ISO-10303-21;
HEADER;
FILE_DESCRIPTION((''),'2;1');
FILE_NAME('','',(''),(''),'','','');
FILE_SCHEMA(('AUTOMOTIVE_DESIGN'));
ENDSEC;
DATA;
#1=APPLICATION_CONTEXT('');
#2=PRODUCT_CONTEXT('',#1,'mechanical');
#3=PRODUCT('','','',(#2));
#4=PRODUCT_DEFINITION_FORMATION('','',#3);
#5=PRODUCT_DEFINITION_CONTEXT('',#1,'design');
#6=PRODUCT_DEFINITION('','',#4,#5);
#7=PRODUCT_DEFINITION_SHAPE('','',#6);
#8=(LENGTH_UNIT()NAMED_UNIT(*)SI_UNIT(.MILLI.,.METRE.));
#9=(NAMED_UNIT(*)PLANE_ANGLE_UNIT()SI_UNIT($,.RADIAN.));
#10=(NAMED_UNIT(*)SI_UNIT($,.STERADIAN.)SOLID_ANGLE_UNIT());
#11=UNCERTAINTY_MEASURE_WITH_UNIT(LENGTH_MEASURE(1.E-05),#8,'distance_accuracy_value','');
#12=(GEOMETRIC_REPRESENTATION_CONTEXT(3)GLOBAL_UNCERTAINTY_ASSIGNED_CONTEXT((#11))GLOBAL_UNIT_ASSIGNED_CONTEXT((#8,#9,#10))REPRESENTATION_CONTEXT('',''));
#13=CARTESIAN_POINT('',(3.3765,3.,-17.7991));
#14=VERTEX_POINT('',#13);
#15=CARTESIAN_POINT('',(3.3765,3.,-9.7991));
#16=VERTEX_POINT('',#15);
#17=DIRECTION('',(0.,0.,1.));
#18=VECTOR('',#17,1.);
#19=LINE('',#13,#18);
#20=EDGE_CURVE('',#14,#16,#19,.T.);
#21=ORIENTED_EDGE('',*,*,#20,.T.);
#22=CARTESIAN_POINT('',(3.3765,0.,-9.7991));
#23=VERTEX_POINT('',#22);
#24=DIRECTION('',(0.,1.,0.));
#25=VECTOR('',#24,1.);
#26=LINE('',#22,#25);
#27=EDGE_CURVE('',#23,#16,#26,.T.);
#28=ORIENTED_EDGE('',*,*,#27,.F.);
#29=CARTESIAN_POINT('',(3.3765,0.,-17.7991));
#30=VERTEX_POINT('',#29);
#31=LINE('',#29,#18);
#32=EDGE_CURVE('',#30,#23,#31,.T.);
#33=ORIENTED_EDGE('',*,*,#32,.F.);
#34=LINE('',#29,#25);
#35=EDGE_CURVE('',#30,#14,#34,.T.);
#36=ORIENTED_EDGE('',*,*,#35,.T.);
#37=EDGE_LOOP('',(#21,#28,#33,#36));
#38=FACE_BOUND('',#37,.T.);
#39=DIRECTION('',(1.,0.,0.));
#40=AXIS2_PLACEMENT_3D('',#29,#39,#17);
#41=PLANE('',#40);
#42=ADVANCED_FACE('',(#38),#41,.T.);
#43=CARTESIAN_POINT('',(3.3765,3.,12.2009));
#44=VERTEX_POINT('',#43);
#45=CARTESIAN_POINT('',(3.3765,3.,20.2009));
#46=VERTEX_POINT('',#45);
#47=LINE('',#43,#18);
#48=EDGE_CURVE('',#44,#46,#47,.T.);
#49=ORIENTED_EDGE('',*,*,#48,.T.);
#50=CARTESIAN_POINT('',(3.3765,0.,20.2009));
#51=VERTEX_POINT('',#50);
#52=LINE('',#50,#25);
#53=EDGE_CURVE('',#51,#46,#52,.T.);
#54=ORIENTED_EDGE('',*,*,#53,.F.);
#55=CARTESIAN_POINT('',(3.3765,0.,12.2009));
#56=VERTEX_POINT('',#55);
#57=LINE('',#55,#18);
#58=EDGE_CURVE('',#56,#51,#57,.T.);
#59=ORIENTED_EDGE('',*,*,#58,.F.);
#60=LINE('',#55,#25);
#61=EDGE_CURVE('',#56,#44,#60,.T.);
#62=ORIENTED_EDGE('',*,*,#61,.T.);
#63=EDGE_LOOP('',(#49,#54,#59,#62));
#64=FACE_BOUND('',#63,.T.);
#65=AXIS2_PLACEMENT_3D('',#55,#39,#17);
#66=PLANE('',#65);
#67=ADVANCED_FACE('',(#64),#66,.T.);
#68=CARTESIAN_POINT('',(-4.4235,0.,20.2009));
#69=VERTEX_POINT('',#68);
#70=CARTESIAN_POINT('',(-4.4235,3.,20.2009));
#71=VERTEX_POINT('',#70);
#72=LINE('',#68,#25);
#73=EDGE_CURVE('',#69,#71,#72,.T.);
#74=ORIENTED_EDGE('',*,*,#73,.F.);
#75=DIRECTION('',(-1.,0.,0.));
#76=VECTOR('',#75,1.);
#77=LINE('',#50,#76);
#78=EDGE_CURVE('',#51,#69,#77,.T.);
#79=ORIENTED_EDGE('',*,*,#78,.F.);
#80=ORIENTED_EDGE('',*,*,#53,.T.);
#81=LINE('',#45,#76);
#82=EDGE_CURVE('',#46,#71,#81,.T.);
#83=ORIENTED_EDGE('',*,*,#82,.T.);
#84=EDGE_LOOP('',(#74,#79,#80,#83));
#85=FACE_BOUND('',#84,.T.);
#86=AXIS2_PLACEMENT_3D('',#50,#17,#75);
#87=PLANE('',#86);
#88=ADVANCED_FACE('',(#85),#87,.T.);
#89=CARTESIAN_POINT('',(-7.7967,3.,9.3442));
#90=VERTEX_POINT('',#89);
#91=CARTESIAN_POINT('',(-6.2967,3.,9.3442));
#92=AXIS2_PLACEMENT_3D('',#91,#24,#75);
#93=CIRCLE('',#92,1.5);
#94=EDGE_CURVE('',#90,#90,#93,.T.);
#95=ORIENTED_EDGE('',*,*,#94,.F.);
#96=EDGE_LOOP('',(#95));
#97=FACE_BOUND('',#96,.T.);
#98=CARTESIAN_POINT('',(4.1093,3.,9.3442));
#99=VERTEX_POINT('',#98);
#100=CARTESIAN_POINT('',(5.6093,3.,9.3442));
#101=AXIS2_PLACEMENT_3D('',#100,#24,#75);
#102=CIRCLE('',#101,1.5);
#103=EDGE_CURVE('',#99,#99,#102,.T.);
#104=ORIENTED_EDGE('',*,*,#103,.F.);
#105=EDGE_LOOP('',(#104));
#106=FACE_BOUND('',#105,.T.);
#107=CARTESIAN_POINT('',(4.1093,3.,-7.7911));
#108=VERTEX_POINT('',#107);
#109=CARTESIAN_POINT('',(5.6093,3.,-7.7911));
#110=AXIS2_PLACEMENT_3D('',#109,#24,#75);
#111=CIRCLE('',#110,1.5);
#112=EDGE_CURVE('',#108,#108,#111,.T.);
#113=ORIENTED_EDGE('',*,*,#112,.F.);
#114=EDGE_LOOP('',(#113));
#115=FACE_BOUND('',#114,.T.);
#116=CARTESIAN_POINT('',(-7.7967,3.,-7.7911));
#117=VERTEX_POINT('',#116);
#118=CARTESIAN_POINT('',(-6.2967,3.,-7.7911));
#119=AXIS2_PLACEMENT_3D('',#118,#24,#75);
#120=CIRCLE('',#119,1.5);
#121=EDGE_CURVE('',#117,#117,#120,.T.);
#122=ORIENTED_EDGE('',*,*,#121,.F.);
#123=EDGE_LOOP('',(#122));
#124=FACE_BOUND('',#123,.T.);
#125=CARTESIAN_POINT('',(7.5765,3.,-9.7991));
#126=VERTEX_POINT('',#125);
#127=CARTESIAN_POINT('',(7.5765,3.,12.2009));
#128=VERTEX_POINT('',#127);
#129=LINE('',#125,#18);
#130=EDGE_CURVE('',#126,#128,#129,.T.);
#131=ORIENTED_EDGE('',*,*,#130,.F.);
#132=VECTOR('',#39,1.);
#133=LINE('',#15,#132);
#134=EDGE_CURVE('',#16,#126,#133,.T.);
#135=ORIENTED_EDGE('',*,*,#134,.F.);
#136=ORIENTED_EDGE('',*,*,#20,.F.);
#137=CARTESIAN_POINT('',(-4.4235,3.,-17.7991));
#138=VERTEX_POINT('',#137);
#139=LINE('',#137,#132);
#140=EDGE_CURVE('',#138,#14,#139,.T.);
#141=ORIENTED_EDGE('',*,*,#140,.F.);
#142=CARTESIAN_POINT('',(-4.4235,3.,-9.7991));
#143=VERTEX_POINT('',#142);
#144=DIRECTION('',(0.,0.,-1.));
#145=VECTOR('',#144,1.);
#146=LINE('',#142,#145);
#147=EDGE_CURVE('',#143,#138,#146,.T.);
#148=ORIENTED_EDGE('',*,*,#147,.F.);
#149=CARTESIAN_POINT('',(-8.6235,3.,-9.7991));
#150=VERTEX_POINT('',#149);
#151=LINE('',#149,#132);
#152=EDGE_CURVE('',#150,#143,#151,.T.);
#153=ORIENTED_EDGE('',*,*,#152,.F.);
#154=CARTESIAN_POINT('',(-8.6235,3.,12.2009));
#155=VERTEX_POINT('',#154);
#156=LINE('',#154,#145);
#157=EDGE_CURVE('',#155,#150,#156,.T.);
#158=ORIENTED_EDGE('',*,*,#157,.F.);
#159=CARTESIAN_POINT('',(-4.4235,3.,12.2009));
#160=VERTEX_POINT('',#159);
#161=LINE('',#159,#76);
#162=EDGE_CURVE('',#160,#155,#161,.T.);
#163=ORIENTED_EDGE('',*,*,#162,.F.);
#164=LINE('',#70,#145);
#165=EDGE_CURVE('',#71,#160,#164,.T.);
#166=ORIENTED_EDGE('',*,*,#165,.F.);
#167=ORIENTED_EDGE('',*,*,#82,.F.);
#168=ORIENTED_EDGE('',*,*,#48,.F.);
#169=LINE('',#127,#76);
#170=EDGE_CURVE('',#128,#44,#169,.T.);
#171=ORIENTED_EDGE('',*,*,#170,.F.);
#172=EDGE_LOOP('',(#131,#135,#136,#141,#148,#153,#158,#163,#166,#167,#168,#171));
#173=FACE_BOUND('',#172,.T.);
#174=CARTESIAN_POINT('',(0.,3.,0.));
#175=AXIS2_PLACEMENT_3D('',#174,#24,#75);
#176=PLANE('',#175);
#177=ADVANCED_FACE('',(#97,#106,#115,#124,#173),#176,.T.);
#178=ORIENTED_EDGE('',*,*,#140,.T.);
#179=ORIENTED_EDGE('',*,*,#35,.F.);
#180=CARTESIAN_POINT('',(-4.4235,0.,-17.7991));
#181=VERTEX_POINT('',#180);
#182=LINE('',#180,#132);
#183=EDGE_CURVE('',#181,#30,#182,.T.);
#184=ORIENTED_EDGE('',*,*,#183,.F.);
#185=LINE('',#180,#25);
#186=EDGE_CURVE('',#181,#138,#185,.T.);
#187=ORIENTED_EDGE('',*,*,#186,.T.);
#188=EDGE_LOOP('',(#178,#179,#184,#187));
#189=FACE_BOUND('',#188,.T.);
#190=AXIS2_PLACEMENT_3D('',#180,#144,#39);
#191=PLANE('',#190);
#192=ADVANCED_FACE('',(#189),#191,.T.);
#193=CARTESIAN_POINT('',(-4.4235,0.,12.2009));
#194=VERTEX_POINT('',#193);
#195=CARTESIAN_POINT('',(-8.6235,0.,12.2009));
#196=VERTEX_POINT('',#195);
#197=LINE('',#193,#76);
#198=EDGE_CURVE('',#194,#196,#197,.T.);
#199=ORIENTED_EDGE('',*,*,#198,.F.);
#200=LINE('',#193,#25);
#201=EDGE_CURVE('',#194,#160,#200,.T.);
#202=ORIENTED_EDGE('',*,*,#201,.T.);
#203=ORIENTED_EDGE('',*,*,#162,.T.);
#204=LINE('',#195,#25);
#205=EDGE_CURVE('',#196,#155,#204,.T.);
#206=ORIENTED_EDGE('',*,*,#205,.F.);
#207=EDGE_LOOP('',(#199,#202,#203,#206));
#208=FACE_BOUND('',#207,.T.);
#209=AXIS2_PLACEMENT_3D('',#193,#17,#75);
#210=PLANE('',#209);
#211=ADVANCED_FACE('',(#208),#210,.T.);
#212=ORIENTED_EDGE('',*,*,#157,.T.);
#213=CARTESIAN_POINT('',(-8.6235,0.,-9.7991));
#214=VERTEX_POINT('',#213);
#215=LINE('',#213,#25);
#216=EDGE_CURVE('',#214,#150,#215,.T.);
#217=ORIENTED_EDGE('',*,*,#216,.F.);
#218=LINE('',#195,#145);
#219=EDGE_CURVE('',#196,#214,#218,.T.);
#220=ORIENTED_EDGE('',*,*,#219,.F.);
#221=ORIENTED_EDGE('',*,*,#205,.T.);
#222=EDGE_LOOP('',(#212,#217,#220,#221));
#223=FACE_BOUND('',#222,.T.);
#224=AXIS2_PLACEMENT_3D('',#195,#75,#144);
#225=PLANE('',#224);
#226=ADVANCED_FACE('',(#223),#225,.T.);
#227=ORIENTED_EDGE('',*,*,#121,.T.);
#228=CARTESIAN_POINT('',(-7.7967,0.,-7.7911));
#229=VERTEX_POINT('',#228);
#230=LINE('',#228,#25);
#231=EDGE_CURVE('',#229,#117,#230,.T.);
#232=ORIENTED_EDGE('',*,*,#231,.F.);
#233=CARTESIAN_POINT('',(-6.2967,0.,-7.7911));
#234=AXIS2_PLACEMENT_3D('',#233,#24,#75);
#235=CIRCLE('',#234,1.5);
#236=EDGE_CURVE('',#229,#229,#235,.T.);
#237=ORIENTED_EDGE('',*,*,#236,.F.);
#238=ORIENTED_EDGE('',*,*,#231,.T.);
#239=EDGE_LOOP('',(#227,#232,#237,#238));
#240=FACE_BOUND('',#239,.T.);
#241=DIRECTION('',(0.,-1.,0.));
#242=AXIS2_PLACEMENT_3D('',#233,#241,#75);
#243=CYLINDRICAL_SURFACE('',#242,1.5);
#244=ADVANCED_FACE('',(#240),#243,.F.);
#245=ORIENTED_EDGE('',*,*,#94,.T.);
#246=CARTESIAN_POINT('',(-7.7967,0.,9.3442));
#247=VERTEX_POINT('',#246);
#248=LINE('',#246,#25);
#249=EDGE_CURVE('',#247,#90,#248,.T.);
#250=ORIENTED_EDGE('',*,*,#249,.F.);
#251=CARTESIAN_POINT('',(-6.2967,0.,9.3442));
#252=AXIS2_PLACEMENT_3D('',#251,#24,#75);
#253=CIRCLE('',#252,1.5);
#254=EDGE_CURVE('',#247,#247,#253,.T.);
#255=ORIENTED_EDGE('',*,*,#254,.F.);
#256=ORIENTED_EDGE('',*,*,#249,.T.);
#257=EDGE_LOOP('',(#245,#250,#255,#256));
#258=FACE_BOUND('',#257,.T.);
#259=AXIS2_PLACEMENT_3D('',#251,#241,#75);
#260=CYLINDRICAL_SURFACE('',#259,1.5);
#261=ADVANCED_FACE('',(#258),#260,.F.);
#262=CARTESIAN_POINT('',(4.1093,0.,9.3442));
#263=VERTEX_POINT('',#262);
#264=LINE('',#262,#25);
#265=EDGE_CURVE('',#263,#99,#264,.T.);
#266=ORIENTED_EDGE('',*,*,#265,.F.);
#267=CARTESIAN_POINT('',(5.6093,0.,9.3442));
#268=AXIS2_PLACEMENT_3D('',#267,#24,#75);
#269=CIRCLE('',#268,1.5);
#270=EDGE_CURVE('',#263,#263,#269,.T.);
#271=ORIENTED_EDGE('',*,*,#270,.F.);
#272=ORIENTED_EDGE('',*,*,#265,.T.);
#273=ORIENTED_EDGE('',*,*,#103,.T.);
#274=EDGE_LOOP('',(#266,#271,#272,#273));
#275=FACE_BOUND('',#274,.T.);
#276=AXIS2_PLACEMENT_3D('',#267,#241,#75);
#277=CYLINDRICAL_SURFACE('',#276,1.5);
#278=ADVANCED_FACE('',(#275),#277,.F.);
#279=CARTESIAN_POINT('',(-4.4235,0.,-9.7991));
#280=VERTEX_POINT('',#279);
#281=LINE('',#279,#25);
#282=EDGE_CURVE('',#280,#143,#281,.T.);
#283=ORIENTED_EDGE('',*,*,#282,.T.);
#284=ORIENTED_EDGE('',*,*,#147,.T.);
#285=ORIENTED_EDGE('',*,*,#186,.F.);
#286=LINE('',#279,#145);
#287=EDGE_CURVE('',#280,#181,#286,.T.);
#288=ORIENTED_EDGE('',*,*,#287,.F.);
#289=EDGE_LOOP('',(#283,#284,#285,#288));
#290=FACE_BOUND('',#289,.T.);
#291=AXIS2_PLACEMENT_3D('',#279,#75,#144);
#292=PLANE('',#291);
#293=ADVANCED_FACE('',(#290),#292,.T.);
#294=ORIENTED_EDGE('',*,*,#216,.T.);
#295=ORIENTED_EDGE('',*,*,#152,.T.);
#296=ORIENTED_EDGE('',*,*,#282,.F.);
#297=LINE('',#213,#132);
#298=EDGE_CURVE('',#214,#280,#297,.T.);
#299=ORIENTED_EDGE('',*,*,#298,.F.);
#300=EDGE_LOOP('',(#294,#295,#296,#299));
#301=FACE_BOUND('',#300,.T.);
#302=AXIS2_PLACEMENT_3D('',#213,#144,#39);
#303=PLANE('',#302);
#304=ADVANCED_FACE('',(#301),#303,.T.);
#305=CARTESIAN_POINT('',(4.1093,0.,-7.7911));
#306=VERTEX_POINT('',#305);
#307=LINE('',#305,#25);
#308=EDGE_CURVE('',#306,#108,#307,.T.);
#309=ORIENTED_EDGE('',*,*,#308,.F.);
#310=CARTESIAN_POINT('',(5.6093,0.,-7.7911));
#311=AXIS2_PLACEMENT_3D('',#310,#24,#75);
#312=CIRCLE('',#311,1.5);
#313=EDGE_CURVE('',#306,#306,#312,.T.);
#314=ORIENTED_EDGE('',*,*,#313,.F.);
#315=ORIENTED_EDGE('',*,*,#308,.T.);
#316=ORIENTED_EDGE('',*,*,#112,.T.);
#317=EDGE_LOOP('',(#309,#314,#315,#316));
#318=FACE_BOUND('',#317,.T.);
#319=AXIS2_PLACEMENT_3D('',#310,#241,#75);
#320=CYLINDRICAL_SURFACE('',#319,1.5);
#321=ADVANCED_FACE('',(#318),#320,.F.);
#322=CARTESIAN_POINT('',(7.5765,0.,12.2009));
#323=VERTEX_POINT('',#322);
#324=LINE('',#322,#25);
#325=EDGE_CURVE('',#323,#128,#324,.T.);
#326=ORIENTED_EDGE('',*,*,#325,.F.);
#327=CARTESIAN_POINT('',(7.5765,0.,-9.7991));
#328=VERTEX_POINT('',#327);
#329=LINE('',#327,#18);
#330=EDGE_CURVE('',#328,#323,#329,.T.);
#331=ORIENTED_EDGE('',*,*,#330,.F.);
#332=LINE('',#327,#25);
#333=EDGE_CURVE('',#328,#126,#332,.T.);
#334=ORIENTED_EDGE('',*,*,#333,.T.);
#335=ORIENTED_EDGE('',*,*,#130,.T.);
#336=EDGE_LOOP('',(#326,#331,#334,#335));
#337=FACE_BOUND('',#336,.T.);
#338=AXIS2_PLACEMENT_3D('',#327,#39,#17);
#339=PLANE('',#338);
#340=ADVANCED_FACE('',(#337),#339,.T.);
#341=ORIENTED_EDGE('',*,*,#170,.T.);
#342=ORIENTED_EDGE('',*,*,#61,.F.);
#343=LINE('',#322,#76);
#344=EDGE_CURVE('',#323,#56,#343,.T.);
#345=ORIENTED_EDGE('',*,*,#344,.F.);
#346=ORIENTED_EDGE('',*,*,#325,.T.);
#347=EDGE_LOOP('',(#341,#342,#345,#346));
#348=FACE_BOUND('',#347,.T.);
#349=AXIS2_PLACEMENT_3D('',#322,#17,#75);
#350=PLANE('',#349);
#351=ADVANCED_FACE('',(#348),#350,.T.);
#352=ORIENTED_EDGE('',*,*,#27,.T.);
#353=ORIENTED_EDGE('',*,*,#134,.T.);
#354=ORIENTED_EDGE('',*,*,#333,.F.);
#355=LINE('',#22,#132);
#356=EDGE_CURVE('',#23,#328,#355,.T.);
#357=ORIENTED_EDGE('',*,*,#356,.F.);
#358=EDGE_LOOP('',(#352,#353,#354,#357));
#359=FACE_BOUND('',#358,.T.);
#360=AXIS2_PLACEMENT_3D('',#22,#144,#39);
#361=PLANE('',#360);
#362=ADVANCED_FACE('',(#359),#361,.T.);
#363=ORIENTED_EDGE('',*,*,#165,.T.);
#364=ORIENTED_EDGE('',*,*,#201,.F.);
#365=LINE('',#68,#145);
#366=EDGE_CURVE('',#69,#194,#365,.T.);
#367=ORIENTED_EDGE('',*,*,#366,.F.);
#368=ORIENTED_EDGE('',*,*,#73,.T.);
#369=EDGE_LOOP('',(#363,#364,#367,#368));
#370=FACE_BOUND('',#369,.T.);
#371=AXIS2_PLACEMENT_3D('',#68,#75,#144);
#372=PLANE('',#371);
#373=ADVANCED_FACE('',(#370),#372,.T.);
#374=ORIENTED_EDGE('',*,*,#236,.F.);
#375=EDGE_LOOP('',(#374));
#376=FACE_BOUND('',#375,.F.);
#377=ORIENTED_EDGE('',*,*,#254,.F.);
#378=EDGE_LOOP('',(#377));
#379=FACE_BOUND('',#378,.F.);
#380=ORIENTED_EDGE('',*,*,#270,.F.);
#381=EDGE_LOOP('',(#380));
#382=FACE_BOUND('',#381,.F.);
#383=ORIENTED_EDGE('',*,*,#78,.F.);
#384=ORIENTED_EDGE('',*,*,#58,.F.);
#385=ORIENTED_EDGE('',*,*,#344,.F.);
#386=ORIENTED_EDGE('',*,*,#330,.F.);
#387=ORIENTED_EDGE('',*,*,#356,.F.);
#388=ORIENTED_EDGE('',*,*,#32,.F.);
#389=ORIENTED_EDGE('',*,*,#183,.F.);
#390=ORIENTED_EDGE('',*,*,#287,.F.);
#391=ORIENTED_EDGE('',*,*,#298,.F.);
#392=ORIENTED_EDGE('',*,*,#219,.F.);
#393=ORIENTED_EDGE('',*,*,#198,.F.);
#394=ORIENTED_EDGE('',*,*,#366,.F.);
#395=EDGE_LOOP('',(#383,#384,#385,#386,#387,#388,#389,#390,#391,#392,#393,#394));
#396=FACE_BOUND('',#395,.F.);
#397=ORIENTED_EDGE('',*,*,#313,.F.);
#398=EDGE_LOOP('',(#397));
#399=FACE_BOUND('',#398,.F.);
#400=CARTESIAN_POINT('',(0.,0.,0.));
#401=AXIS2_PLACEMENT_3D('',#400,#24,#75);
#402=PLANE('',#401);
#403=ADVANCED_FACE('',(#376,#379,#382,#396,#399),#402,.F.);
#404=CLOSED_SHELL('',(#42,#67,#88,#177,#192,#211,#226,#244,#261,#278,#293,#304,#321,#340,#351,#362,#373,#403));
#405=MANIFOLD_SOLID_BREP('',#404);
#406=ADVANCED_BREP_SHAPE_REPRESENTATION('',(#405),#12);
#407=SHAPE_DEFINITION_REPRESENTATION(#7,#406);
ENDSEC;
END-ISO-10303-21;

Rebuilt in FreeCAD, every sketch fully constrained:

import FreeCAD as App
import Part
import Sketcher
from FreeCAD import Vector

doc = App.newDocument("Part")
body = doc.addObject("PartDesign::Body", "Body")

# Sketch on XZ plane
sketch1 = doc.addObject("Sketcher::SketchObject", "Sketch")
body.addObject(sketch1)
sketch1.AttachmentSupport = (doc.XZ_Plane, [""])
sketch1.MapMode = "FlatFace"
sketch1.addGeometry([
    Part.LineSegment(Vector(-4.4235, -17.7991, 0), Vector(-4.4235, -9.7991, 0)),  # 0
    Part.LineSegment(Vector(-4.4235, -9.7991, 0), Vector(-8.6235, -9.7991, 0)),  # 1
    Part.LineSegment(Vector(-8.6235, -9.7991, 0), Vector(-8.6235, 12.2009, 0)),  # 2
    Part.LineSegment(Vector(-8.6235, 12.2009, 0), Vector(-4.4235, 12.2009, 0)),  # 3
    Part.LineSegment(Vector(-4.4235, 12.2009, 0), Vector(-4.4235, 20.2009, 0)),  # 4
    Part.LineSegment(Vector(-4.4235, 20.2009, 0), Vector(3.3765, 20.2009, 0)),  # 5
    Part.LineSegment(Vector(3.3765, 20.2009, 0), Vector(3.3765, 12.2009, 0)),  # 6
    Part.LineSegment(Vector(3.3765, 12.2009, 0), Vector(7.5765, 12.2009, 0)),  # 7
    Part.LineSegment(Vector(7.5765, 12.2009, 0), Vector(7.5765, -9.7991, 0)),  # 8
    Part.LineSegment(Vector(7.5765, -9.7991, 0), Vector(3.3765, -9.7991, 0)),  # 9
    Part.LineSegment(Vector(3.3765, -9.7991, 0), Vector(3.3765, -17.7991, 0)),  # 10
    Part.LineSegment(Vector(3.3765, -17.7991, 0), Vector(-4.4235, -17.7991, 0)),  # 11
    Part.Circle(Vector(5.6093, -7.7911, 0), Vector(0, 0, 1), 1.5),  # 12
    Part.Circle(Vector(-6.2967, -7.7911, 0), Vector(0, 0, 1), 1.5),  # 13
    Part.Circle(Vector(5.6093, 9.3442, 0), Vector(0, 0, 1), 1.5),  # 14
    Part.Circle(Vector(-6.2967, 9.3442, 0), Vector(0, 0, 1), 1.5),  # 15
], False)
sketch1.addConstraint([
    Sketcher.Constraint("Coincident", 0, 2, 1, 1),
    Sketcher.Constraint("Coincident", 1, 2, 2, 1),
    Sketcher.Constraint("Coincident", 2, 2, 3, 1),
    Sketcher.Constraint("Coincident", 3, 2, 4, 1),
    Sketcher.Constraint("Coincident", 4, 2, 5, 1),
    Sketcher.Constraint("Coincident", 5, 2, 6, 1),
    Sketcher.Constraint("Coincident", 6, 2, 7, 1),
    Sketcher.Constraint("Coincident", 7, 2, 8, 1),
    Sketcher.Constraint("Coincident", 8, 2, 9, 1),
    Sketcher.Constraint("Coincident", 9, 2, 10, 1),
    Sketcher.Constraint("Coincident", 10, 2, 11, 1),
    Sketcher.Constraint("Coincident", 11, 2, 0, 1),
    Sketcher.Constraint("Vertical", 0),
    Sketcher.Constraint("Horizontal", 1),
    Sketcher.Constraint("Vertical", 2),
    Sketcher.Constraint("Horizontal", 3),
    Sketcher.Constraint("Vertical", 4),
    Sketcher.Constraint("Horizontal", 5),
    Sketcher.Constraint("Vertical", 6),
    Sketcher.Constraint("Horizontal", 7),
    Sketcher.Constraint("Vertical", 8),
    Sketcher.Constraint("Horizontal", 9),
    Sketcher.Constraint("Vertical", 10),
    Sketcher.Constraint("Horizontal", 11),
    Sketcher.Constraint("Equal", 12, 13),
    Sketcher.Constraint("Equal", 13, 14),
    Sketcher.Constraint("Equal", 14, 15),
    Sketcher.Constraint("Horizontal", 12, 3, 13, 3),
    Sketcher.Constraint("Horizontal", 14, 3, 15, 3),
    Sketcher.Constraint("Horizontal", 3, 2, 6, 2),
    Sketcher.Constraint("Horizontal", 1, 2, 8, 2),
    Sketcher.Constraint("Vertical", 12, 3, 14, 3),
    Sketcher.Constraint("Vertical", 13, 3, 15, 3),
    Sketcher.Constraint("Vertical", 0, 2, 3, 2),
    Sketcher.Constraint("Vertical", 6, 2, 9, 2),
    Sketcher.Constraint("Equal", 3, 7),
    Sketcher.Constraint("Equal", 0, 4),
    Sketcher.Constraint("Diameter", 12, 3.0),
    Sketcher.Constraint("DistanceY", 0, 1, 0, 2, 8.0),
    Sketcher.Constraint("DistanceY", 2, 1, 2, 2, 22.0),
    Sketcher.Constraint("DistanceX", 1, 2, 1, 1, 4.2),
    Sketcher.Constraint("DistanceX", 5, 1, 5, 2, 7.8),
    Sketcher.Constraint("DistanceY", 12, 3, -1, 1, 7.791),
    Sketcher.Constraint("DistanceY", 0, 2, -1, 1, 9.799),
    Sketcher.Constraint("DistanceX", 13, 3, 12, 3, 11.906),
    Sketcher.Constraint("DistanceX", -1, 1, 12, 3, 5.6093),
    Sketcher.Constraint("DistanceY", -1, 1, 14, 3, 9.3442),
    Sketcher.Constraint("DistanceX", 0, 2, -1, 1, 4.4235),
])
pad1 = doc.addObject("PartDesign::Pad", "Pad")
body.addObject(pad1)
pad1.Profile = sketch1
pad1.Length = 3
pad1.Reversed = True

doc.recompute()
